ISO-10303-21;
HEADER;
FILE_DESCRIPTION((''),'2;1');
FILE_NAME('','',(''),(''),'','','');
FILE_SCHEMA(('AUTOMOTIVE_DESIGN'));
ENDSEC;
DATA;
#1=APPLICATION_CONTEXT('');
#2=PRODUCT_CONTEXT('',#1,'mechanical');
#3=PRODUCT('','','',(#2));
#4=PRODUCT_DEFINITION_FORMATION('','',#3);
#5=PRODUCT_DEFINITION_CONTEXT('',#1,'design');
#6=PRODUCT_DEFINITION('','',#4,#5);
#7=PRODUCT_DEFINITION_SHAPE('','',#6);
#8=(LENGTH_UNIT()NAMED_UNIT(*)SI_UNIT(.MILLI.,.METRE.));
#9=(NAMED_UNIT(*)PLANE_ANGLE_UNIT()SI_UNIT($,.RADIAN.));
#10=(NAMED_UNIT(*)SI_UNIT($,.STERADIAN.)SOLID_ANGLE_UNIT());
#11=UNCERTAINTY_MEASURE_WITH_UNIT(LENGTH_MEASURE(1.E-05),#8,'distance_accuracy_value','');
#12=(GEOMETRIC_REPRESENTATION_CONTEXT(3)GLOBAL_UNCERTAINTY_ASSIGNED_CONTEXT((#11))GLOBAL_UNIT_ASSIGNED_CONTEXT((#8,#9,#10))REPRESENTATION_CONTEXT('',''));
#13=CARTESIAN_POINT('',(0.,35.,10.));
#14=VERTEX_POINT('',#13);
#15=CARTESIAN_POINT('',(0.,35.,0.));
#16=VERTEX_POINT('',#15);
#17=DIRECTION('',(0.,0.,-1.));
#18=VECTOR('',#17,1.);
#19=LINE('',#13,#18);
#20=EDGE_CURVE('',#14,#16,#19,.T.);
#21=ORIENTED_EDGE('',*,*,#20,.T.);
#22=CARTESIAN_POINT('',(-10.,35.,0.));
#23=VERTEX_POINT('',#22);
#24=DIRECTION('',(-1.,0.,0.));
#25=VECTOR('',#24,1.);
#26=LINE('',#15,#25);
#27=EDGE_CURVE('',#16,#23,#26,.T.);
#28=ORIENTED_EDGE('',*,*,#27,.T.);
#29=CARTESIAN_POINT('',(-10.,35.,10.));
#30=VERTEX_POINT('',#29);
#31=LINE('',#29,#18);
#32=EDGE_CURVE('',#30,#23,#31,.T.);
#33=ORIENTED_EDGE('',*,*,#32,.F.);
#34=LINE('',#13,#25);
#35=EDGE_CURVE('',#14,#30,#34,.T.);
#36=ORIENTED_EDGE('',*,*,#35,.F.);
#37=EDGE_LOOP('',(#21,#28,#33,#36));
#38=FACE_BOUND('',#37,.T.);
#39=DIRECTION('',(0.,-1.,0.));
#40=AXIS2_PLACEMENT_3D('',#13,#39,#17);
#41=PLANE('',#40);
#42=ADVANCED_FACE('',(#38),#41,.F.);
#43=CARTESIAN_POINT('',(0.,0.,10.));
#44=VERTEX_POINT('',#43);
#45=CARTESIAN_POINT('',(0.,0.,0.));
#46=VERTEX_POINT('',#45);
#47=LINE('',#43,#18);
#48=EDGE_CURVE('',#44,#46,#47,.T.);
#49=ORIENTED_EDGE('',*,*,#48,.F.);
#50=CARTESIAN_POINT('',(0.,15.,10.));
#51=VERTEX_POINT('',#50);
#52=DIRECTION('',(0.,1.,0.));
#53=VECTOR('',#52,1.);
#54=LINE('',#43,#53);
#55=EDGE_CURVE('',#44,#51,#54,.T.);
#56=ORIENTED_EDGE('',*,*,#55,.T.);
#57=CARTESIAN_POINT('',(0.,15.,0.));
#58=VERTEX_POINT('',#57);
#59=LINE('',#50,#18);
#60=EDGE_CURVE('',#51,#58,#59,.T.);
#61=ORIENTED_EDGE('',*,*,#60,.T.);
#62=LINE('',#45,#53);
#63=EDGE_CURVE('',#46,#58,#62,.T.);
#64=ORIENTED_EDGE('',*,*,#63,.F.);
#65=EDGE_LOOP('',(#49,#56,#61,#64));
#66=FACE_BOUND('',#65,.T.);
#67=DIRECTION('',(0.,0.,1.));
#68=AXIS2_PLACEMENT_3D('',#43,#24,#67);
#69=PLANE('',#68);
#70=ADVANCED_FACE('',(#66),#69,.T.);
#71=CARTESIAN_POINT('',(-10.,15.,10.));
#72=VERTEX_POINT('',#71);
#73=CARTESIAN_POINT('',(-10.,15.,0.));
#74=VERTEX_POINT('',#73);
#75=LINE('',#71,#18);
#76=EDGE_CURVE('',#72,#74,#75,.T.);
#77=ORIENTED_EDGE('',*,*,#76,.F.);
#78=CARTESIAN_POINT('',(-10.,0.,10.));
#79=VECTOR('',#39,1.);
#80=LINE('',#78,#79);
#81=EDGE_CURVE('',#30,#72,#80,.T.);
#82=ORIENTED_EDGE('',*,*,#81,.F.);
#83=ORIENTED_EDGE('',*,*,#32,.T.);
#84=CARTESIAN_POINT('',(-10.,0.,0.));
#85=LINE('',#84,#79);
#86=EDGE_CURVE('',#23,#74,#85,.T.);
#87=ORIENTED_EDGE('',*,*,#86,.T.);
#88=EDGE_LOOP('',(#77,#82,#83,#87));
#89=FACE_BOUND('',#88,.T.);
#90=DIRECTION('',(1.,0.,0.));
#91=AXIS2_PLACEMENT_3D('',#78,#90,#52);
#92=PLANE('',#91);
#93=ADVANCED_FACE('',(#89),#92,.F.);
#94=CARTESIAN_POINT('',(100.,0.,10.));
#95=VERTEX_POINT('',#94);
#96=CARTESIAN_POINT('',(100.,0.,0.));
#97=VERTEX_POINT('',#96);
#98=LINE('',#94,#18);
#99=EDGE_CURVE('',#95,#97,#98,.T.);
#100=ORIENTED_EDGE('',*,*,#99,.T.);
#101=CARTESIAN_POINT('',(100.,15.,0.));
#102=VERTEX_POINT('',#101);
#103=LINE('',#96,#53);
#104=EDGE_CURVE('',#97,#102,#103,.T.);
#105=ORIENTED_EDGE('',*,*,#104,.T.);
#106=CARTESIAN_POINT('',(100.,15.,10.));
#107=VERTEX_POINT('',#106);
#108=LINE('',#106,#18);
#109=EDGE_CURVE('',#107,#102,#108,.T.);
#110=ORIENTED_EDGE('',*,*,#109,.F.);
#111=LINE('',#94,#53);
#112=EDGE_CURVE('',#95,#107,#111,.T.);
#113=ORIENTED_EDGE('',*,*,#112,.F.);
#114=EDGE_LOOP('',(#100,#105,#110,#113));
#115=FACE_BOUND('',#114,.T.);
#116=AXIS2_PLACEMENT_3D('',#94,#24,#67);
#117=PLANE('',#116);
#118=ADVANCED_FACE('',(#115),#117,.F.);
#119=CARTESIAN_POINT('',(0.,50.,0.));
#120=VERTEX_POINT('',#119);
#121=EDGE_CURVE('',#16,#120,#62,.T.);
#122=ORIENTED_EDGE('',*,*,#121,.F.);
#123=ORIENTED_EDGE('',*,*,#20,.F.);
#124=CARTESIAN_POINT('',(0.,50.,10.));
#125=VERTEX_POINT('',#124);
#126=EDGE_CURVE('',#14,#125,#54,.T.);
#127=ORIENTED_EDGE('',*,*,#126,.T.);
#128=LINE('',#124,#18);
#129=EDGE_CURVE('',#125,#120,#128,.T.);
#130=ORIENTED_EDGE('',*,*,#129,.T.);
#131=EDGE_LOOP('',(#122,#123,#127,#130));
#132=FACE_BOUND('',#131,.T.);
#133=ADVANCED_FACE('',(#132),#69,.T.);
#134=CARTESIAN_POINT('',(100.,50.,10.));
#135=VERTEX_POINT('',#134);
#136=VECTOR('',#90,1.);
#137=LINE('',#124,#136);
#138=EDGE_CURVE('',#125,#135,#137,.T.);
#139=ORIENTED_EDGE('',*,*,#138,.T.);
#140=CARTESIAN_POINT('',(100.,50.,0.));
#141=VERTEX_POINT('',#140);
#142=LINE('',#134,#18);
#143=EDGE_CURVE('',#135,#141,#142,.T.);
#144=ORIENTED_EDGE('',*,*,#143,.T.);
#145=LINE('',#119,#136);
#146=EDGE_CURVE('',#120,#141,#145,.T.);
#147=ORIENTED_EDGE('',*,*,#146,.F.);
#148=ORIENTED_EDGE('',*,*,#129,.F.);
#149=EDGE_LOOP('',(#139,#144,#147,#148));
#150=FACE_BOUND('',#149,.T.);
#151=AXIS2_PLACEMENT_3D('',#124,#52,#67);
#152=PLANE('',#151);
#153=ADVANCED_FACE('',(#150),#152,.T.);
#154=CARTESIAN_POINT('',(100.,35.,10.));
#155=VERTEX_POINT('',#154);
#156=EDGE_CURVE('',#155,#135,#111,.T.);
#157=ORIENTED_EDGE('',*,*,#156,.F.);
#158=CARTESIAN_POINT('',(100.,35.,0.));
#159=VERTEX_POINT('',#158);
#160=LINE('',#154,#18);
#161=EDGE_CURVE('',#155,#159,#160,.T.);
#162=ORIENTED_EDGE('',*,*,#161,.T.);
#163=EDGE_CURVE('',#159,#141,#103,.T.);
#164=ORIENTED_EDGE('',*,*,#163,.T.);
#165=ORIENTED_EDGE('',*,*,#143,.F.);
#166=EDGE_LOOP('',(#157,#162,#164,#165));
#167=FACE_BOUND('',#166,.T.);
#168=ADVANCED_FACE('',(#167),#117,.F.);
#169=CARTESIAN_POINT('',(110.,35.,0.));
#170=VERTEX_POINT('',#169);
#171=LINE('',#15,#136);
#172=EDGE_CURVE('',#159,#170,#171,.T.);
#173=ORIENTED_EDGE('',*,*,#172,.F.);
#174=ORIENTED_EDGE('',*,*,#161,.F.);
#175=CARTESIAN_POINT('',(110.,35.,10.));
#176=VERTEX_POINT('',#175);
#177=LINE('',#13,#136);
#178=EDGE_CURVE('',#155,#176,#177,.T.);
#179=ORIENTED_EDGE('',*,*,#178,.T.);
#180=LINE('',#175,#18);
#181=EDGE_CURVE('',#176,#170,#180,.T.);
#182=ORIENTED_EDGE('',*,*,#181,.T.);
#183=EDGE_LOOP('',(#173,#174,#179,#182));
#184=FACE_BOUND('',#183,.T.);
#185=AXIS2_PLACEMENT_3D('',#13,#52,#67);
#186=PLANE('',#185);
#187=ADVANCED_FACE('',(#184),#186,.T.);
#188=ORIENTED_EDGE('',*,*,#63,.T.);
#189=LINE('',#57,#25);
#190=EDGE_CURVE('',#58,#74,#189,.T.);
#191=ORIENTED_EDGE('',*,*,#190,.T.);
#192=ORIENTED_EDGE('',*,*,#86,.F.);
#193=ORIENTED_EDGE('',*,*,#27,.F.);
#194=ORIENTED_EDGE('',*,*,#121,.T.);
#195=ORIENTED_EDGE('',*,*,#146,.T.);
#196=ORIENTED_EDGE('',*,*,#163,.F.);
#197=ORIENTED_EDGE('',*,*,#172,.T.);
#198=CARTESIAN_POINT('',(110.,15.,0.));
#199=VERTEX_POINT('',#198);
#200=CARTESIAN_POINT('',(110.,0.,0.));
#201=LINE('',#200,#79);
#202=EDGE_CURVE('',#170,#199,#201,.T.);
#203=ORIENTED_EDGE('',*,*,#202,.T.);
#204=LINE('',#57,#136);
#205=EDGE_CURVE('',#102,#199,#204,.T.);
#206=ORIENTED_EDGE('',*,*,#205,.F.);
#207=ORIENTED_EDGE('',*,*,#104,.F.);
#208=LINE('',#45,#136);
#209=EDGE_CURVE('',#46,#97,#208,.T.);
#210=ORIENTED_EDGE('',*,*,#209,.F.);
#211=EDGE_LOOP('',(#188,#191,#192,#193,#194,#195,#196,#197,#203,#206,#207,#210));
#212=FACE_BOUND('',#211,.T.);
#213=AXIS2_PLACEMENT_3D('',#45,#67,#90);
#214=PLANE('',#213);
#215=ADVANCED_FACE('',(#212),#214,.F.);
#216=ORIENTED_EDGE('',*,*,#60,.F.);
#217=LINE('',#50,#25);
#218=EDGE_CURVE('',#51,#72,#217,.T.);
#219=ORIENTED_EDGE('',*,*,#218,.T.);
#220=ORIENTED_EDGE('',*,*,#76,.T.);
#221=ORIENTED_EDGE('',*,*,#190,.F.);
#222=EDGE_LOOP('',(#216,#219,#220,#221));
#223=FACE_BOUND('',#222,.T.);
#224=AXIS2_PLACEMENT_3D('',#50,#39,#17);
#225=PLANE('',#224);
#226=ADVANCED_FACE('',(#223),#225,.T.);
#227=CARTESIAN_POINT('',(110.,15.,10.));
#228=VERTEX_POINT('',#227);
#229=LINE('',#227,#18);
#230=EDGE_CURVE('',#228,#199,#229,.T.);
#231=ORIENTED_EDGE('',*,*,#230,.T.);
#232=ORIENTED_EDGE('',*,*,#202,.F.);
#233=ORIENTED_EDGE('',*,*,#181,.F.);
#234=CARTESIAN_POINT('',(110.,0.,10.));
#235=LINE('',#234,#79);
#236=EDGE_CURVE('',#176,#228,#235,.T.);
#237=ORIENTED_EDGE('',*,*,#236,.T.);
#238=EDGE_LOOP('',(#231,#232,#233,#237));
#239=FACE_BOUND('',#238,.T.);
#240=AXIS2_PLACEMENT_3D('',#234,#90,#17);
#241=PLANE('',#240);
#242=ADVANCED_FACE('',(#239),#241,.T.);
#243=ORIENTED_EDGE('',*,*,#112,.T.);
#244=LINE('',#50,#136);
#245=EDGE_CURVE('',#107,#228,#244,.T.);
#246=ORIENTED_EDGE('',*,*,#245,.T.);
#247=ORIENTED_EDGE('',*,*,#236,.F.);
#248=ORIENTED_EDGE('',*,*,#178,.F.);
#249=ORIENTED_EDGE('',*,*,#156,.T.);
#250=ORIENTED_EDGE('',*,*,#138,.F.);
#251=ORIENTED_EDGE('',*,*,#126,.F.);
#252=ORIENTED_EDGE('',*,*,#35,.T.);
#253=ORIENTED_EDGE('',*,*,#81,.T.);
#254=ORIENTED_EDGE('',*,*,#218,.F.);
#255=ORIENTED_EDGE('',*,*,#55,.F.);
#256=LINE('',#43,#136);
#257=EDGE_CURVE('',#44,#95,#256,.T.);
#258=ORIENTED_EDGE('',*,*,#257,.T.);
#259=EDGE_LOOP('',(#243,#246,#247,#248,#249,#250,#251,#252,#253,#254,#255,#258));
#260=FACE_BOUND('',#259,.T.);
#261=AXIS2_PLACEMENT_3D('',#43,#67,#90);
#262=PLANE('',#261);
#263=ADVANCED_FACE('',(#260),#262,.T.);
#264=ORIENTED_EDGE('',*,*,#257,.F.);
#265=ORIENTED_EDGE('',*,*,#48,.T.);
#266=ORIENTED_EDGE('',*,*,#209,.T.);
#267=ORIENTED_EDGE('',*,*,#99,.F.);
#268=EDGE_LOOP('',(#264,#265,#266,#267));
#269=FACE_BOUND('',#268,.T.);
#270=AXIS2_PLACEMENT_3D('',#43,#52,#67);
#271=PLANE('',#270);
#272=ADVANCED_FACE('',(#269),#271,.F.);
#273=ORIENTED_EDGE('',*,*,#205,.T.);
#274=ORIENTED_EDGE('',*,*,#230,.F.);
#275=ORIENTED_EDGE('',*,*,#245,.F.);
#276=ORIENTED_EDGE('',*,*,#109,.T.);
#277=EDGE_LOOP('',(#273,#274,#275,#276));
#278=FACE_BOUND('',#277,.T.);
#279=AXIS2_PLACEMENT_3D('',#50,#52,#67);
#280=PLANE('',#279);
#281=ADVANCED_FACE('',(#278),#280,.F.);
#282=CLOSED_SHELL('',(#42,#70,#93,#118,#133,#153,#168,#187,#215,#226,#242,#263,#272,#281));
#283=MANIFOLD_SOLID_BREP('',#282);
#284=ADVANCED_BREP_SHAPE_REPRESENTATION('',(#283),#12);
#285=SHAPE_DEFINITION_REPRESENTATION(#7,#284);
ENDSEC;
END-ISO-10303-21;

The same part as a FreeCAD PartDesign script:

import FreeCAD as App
import Part
import Sketcher
Q = App.Units.Quantity

doc = App.newDocument("Part")
body = doc.addObject("PartDesign::Body", "Body")

# Sketch on XY plane
sketch1 = body.newObject("Sketcher::SketchObject", "Sketch")
sketch1.AttachmentSupport = (doc.getObject("XY_Plane"), [""])
sketch1.MapMode = "FlatFace"
sketch1.addGeometry(Part.LineSegment(App.Vector(-10, 35, 0), App.Vector(-10, 15, 0)), False)
sketch1.addGeometry(Part.LineSegment(App.Vector(-10, 15, 0), App.Vector(0, 15, 0)), False)
sketch1.addGeometry(Part.LineSegment(App.Vector(0, 15, 0), App.Vector(0, 0, 0)), False)
sketch1.addGeometry(Part.LineSegment(App.Vector(0, 0, 0), App.Vector(100, 0, 0)), False)
sketch1.addGeometry(Part.LineSegment(App.Vector(100, 0, 0), App.Vector(100, 15, 0)), False)
sketch1.addGeometry(Part.LineSegment(App.Vector(100, 15, 0), App.Vector(110, 15, 0)), False)
sketch1.addGeometry(Part.LineSegment(App.Vector(110, 15, 0), App.Vector(110, 35, 0)), False)
sketch1.addGeometry(Part.LineSegment(App.Vector(110, 35, 0), App.Vector(100, 35, 0)), False)
sketch1.addGeometry(Part.LineSegment(App.Vector(100, 35, 0), App.Vector(100, 50, 0)), False)
sketch1.addGeometry(Part.LineSegment(App.Vector(100, 50, 0), App.Vector(0, 50, 0)), False)
sketch1.addGeometry(Part.LineSegment(App.Vector(0, 50, 0), App.Vector(0, 35, 0)), False)
sketch1.addGeometry(Part.LineSegment(App.Vector(0, 35, 0), App.Vector(-10, 35, 0)), False)
sketch1.addConstraint(Sketcher.Constraint("Coincident", 0, 2, 1, 1))
sketch1.addConstraint(Sketcher.Constraint("Coincident", 1, 2, 2, 1))
sketch1.addConstraint(Sketcher.Constraint("Coincident", 2, 2, 3, 1))
sketch1.addConstraint(Sketcher.Constraint("Coincident", 3, 2, 4, 1))
sketch1.addConstraint(Sketcher.Constraint("Coincident", 4, 2, 5, 1))
sketch1.addConstraint(Sketcher.Constraint("Coincident", 5, 2, 6, 1))
sketch1.addConstraint(Sketcher.Constraint("Coincident", 6, 2, 7, 1))
sketch1.addConstraint(Sketcher.Constraint("Coincident", 7, 2, 8, 1))
sketch1.addConstraint(Sketcher.Constraint("Coincident", 8, 2, 9, 1))
sketch1.addConstraint(Sketcher.Constraint("Coincident", 9, 2, 10, 1))
sketch1.addConstraint(Sketcher.Constraint("Coincident", 10, 2, 11, 1))
sketch1.addConstraint(Sketcher.Constraint("Coincident", 11, 2, 0, 1))
sketch1.addConstraint(Sketcher.Constraint("Vertical", 0))
sketch1.addConstraint(Sketcher.Constraint("Horizontal", 1))
sketch1.addConstraint(Sketcher.Constraint("Vertical", 2))
sketch1.addConstraint(Sketcher.Constraint("Horizontal", 3))
sketch1.addConstraint(Sketcher.Constraint("Vertical", 4))
sketch1.addConstraint(Sketcher.Constraint("Horizontal", 5))
sketch1.addConstraint(Sketcher.Constraint("Vertical", 6))
sketch1.addConstraint(Sketcher.Constraint("Horizontal", 7))
sketch1.addConstraint(Sketcher.Constraint("Vertical", 8))
sketch1.addConstraint(Sketcher.Constraint("Horizontal", 9))
sketch1.addConstraint(Sketcher.Constraint("Vertical", 10))
sketch1.addConstraint(Sketcher.Constraint("Horizontal", 11))
sketch1.addConstraint(Sketcher.Constraint("Coincident", 2, 2, -1, 1))
sketch1.addConstraint(Sketcher.Constraint("PointOnObject", 9, 2, -2))
sketch1.addConstraint(Sketcher.Constraint("Horizontal", 1, 2, 4, 2))
sketch1.addConstraint(Sketcher.Constraint("Horizontal", 7, 2, 10, 2))
sketch1.addConstraint(Sketcher.Constraint("Vertical", 4, 2, 7, 2))
sketch1.addConstraint(Sketcher.Constraint("Equal", 1, 5))
sketch1.addConstraint(Sketcher.Constraint("Equal", 4, 8))
sketch1.addConstraint(Sketcher.Constraint("DistanceX", 1, 1, 1, 2, Q("10 mm")))
sketch1.addConstraint(Sketcher.Constraint("DistanceX", 3, 1, 3, 2, Q("100 mm")))
sketch1.addConstraint(Sketcher.Constraint("DistanceY", 0, 2, 0, 1, Q("20 mm")))
sketch1.addConstraint(Sketcher.Constraint("DistanceY", 2, 2, 2, 1, Q("15 mm")))
pad1 = body.newObject("PartDesign::Pad", "Pad")
pad1.Profile = sketch1
pad1.Length = 10

doc.recompute()
